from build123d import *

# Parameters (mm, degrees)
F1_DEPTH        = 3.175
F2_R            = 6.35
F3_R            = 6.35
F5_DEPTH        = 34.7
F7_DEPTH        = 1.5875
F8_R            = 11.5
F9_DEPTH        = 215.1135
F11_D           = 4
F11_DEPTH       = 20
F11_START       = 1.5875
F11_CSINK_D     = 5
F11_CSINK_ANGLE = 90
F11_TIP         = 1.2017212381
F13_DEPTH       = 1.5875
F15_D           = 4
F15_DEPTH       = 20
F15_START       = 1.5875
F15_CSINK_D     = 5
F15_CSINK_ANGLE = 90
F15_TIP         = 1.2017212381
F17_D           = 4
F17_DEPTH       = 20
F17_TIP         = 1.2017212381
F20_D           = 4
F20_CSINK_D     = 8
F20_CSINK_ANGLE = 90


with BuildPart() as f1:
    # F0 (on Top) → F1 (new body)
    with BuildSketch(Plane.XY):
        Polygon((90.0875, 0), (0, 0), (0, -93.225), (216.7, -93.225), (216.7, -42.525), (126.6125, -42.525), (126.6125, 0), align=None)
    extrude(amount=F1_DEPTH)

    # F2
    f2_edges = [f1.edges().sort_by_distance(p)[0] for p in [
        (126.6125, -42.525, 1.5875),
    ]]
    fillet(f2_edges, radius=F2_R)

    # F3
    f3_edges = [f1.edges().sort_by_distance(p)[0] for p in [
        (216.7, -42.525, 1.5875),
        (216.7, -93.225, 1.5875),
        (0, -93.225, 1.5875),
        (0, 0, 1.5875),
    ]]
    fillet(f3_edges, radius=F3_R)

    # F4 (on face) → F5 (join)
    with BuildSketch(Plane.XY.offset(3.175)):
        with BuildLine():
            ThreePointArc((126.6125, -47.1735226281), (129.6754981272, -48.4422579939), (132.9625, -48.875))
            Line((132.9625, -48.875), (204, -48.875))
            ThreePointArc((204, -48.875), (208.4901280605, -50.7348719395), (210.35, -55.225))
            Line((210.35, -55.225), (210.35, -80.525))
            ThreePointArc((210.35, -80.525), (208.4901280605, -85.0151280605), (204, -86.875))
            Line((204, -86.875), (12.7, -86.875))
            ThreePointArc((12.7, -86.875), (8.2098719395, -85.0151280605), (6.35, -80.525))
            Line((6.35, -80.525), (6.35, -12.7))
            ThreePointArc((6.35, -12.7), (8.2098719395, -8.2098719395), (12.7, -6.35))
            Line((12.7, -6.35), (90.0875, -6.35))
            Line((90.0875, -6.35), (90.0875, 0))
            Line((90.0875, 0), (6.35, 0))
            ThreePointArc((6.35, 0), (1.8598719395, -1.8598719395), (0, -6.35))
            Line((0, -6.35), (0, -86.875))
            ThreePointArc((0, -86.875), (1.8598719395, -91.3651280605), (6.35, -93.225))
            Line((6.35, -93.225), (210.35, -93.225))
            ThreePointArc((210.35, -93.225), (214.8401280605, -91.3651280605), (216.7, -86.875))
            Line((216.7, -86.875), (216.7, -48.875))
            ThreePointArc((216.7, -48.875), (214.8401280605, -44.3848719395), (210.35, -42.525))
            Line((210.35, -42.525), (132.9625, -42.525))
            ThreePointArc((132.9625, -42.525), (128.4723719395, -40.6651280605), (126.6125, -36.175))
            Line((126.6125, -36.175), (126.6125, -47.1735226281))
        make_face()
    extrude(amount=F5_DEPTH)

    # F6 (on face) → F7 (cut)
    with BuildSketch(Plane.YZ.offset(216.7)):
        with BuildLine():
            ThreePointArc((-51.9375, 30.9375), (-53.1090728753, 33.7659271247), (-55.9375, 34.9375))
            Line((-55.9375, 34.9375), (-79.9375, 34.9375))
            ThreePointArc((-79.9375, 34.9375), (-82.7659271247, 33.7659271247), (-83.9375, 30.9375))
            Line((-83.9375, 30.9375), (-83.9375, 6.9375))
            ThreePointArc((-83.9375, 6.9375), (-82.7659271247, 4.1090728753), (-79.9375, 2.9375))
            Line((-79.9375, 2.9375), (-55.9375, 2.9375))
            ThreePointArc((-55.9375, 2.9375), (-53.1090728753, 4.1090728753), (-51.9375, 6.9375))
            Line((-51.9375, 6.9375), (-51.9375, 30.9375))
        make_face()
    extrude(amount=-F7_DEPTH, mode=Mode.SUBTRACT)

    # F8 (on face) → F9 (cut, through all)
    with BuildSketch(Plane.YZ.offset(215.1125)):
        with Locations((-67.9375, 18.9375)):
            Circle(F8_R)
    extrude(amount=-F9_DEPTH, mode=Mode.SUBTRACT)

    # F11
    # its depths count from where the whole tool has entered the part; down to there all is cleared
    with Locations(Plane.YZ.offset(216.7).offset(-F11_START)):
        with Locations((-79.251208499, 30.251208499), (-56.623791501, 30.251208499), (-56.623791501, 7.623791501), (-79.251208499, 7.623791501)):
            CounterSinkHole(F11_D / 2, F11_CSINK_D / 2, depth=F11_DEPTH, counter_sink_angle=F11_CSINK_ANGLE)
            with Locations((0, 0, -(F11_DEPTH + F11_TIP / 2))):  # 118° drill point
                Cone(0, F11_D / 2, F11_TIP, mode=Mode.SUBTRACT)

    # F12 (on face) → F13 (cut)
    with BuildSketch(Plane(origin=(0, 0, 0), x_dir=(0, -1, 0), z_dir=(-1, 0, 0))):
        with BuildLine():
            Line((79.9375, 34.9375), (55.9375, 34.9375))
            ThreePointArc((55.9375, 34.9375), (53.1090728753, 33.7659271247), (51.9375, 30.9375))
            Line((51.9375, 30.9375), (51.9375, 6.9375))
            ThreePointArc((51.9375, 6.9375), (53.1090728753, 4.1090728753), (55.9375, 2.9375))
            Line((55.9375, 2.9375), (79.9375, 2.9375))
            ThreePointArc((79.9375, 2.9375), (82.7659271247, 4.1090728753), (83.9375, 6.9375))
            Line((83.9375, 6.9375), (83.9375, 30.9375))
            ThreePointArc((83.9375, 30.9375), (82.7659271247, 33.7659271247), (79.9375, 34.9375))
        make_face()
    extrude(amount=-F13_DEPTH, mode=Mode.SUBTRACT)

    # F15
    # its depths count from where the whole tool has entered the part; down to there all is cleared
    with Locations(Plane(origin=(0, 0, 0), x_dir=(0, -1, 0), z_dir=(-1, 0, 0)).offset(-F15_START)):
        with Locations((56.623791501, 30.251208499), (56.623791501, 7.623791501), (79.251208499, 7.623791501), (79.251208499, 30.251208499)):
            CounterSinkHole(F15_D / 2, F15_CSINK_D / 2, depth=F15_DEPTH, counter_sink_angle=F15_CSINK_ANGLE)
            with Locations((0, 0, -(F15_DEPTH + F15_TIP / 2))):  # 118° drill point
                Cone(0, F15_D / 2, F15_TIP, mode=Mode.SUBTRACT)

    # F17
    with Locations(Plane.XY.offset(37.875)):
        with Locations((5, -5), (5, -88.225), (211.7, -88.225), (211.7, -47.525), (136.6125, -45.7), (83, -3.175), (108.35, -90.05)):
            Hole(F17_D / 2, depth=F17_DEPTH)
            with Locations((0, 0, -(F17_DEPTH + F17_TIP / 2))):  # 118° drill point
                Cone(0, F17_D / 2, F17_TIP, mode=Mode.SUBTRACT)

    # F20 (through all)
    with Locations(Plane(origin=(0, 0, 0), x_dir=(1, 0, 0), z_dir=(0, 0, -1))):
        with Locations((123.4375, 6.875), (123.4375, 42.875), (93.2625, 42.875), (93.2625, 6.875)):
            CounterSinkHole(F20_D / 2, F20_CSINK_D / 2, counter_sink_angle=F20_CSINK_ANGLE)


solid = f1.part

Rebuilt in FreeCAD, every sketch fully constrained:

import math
import FreeCAD as App
import Part
import Sketcher


def edges_at(feature, points):
    """Names of the edges that pass closest to the given points."""
    edges = feature.Shape.Edges
    near = lambda p: min(range(len(edges)), key=lambda i: edges[i].distToShape(Part.Vertex(*p))[0])
    return sorted({f"Edge{near(p) + 1}" for p in points})

doc = App.newDocument("Part")
body = doc.addObject("PartDesign::Body", "Body")

# Sketch on XY plane
sketch1 = body.newObject("Sketcher::SketchObject", "Sketch")
sketch1.AttachmentSupport = (doc.getObject("XY_Plane"), [""])
sketch1.MapMode = "FlatFace"
sketch1.addGeometry(Part.LineSegment(App.Vector(0, 0, 0), App.Vector(0, -93, 0)), False)
sketch1.addGeometry(Part.LineSegment(App.Vector(0, -93, 0), App.Vector(217, -93, 0)), False)
sketch1.addGeometry(Part.LineSegment(App.Vector(217, -93, 0), App.Vector(217, -43, 0)), False)
sketch1.addGeometry(Part.LineSegment(App.Vector(217, -43, 0), App.Vector(127, -43, 0)), False)
sketch1.addGeometry(Part.LineSegment(App.Vector(127, -43, 0), App.Vector(127, 0, 0)), False)
sketch1.addGeometry(Part.LineSegment(App.Vector(127, 0, 0), App.Vector(0, 0, 0)), False)
sketch1.addConstraint(Sketcher.Constraint("Coincident", 0, 2, 1, 1))
sketch1.addConstraint(Sketcher.Constraint("Coincident", 1, 2, 2, 1))
sketch1.addConstraint(Sketcher.Constraint("Coincident", 2, 2, 3, 1))
sketch1.addConstraint(Sketcher.Constraint("Coincident", 3, 2, 4, 1))
sketch1.addConstraint(Sketcher.Constraint("Coincident", 4, 2, 5, 1))
sketch1.addConstraint(Sketcher.Constraint("Coincident", 5, 2, 0, 1))
sketch1.addConstraint(Sketcher.Constraint("Vertical", 0))
sketch1.addConstraint(Sketcher.Constraint("Horizontal", 1))
sketch1.addConstraint(Sketcher.Constraint("Vertical", 2))
sketch1.addConstraint(Sketcher.Constraint("Horizontal", 3))
sketch1.addConstraint(Sketcher.Constraint("Vertical", 4))
sketch1.addConstraint(Sketcher.Constraint("Horizontal", 5))
sketch1.addConstraint(Sketcher.Constraint("Coincident", 5, 2, -1, 1))
sketch1.addConstraint(Sketcher.Constraint("DistanceX", 1, 1, 1, 2, 216.7))
sketch1.addConstraint(Sketcher.Constraint("DistanceY", 2, 1, 2, 2, 50.7))
sketch1.addConstraint(Sketcher.Constraint("DistanceY", 0, 2, 0, 1, 93.225))
sketch1.addConstraint(Sketcher.Constraint("DistanceX", 3, 2, 3, 1, 90.0875))
pad1 = body.newObject("PartDesign::Pad", "Pad")
pad1.Profile = sketch1
pad1.Length = 3.175
doc.recompute()

fillet = body.newObject("PartDesign::Fillet", "Fillet")
fillet.Base = (pad1, edges_at(pad1, [(126.612, -42.525, 1.587)]))
fillet.Radius = 6.35
doc.recompute()

fillet2 = body.newObject("PartDesign::Fillet", "Fillet001")
fillet2.Base = (fillet, edges_at(fillet, [
    (216.7, -42.525, 1.587),
    (216.7, -93.225, 1.587),
    (0, -93.225, 1.587),
    (0, 0, 1.587),
]))
fillet2.Radius = 6.35

# Sketch on XY plane
sketch2 = body.newObject("Sketcher::SketchObject", "Sketch001")
sketch2.AttachmentSupport = (doc.getObject("XY_Plane"), [""])
sketch2.MapMode = "FlatFace"
sketch2.AttachmentOffset = App.Placement(App.Vector(0, 0, 3.175), App.Rotation())
sketch2.addGeometry(Part.ArcOfCircle(Part.Circle(App.Vector(133, -36, 0), App.Vector(0, 0, 1), 13), math.radians(-120), math.radians(-90)), False)
sketch2.addGeometry(Part.LineSegment(App.Vector(133, -49, 0), App.Vector(204, -49, 0)), False)
sketch2.addGeometry(Part.ArcOfCircle(Part.Circle(App.Vector(204, -55, 0), App.Vector(0, 0, 1), 6), math.radians(0), math.radians(90)), False)
sketch2.addGeometry(Part.LineSegment(App.Vector(210, -55, 0), App.Vector(210, -81, 0)), False)
sketch2.addGeometry(Part.ArcOfCircle(Part.Circle(App.Vector(204, -81, 0), App.Vector(0, 0, 1), 6), math.radians(-90), math.radians(0)), False)
sketch2.addGeometry(Part.LineSegment(App.Vector(204, -87, 0), App.Vector(13, -87, 0)), False)
sketch2.addGeometry(Part.ArcOfCircle(Part.Circle(App.Vector(13, -81, 0), App.Vector(0, 0, 1), 6), math.radians(180), math.radians(270)), False)
sketch2.addGeometry(Part.LineSegment(App.Vector(6, -81, 0), App.Vector(6, -13, 0)), False)
sketch2.addGeometry(Part.ArcOfCircle(Part.Circle(App.Vector(13, -13, 0), App.Vector(0, 0, 1), 6), math.radians(90), math.radians(180)), False)
sketch2.addGeometry(Part.LineSegment(App.Vector(13, -6, 0), App.Vector(90, -6, 0)), False)
sketch2.addGeometry(Part.LineSegment(App.Vector(90, -6, 0), App.Vector(90, 0, 0)), False)
sketch2.addGeometry(Part.LineSegment(App.Vector(90, 0, 0), App.Vector(6, 0, 0)), False)
sketch2.addGeometry(Part.ArcOfCircle(Part.Circle(App.Vector(6, -6, 0), App.Vector(0, 0, 1), 6), math.radians(90), math.radians(180)), False)
sketch2.addGeometry(Part.LineSegment(App.Vector(0, -6, 0), App.Vector(0, -87, 0)), False)
sketch2.addGeometry(Part.ArcOfCircle(Part.Circle(App.Vector(6, -87, 0), App.Vector(0, 0, 1), 6), math.radians(180), math.radians(270)), False)
sketch2.addGeometry(Part.LineSegment(App.Vector(6, -93, 0), App.Vector(210, -93, 0)), False)
sketch2.addGeometry(Part.ArcOfCircle(Part.Circle(App.Vector(210, -87, 0), App.Vector(0, 0, 1), 6), math.radians(-90), math.radians(0)), False)
sketch2.addGeometry(Part.LineSegment(App.Vector(217, -87, 0), App.Vector(217, -49, 0)), False)
sketch2.addGeometry(Part.ArcOfCircle(Part.Circle(App.Vector(210, -49, 0), App.Vector(0, 0, 1), 6), math.radians(0), math.radians(90)), False)
sketch2.addGeometry(Part.LineSegment(App.Vector(210, -43, 0), App.Vector(133, -43, 0)), False)
sketch2.addGeometry(Part.ArcOfCircle(Part.Circle(App.Vector(133, -36, 0), App.Vector(0, 0, 1), 6), math.radians(180), math.radians(270)), False)
sketch2.addGeometry(Part.LineSegment(App.Vector(127, -36, 0), App.Vector(127, -47, 0)), False)
sketch2.addConstraint(Sketcher.Constraint("Tangent", 0, 2, 1, 1))
sketch2.addConstraint(Sketcher.Constraint("Tangent", 1, 2, 2, 2))
sketch2.addConstraint(Sketcher.Constraint("Tangent", 2, 1, 3, 1))
sketch2.addConstraint(Sketcher.Constraint("Tangent", 3, 2, 4, 2))
sketch2.addConstraint(Sketcher.Constraint("Tangent", 4, 1, 5, 1))
sketch2.addConstraint(Sketcher.Constraint("Tangent", 5, 2, 6, 2))
sketch2.addConstraint(Sketcher.Constraint("Tangent", 6, 1, 7, 1))
sketch2.addConstraint(Sketcher.Constraint("Tangent", 7, 2, 8, 2))
sketch2.addConstraint(Sketcher.Constraint("Tangent", 8, 1, 9, 1))
sketch2.addConstraint(Sketcher.Constraint("Coincident", 9, 2, 10, 1))
sketch2.addConstraint(Sketcher.Constraint("Coincident", 10, 2, 11, 1))
sketch2.addConstraint(Sketcher.Constraint("Tangent", 11, 2, 12, 1))
sketch2.addConstraint(Sketcher.Constraint("Tangent", 12, 2, 13, 1))
sketch2.addConstraint(Sketcher.Constraint("Tangent", 13, 2, 14, 1))
sketch2.addConstraint(Sketcher.Constraint("Tangent", 14, 2, 15, 1))
sketch2.addConstraint(Sketcher.Constraint("Tangent", 15, 2, 16, 1))
sketch2.addConstraint(Sketcher.Constraint("Tangent", 16, 2, 17, 1))
sketch2.addConstraint(Sketcher.Constraint("Tangent", 17, 2, 18, 1))
sketch2.addConstraint(Sketcher.Constraint("Tangent", 18, 2, 19, 1))
sketch2.addConstraint(Sketcher.Constraint("Tangent", 19, 2, 20, 2))
sketch2.addConstraint(Sketcher.Constraint("Tangent", 20, 1, 21, 1))
sketch2.addConstraint(Sketcher.Constraint("Coincident", 21, 2, 0, 1))
sketch2.addConstraint(Sketcher.Constraint("Horizontal", 1))
sketch2.addConstraint(Sketcher.Constraint("Vertical", 3))
sketch2.addConstraint(Sketcher.Constraint("Horizontal", 5))
sketch2.addConstraint(Sketcher.Constraint("Vertical", 7))
sketch2.addConstraint(Sketcher.Constraint("Horizontal", 9))
sketch2.addConstraint(Sketcher.Constraint("Vertical", 10))
sketch2.addConstraint(Sketcher.Constraint("Horizontal", 11))
sketch2.addConstraint(Sketcher.Constraint("Vertical", 13))
sketch2.addConstraint(Sketcher.Constraint("Horizontal", 15))
sketch2.addConstraint(Sketcher.Constraint("Vertical", 17))
sketch2.addConstraint(Sketcher.Constraint("Horizontal", 19))
sketch2.addConstraint(Sketcher.Constraint("Vertical", 21))
sketch2.addConstraint(Sketcher.Constraint("Coincident", 20, 3, 0, 3))
sketch2.addConstraint(Sketcher.Constraint("Equal", 2, 4))
sketch2.addConstraint(Sketcher.Constraint("Equal", 4, 6))
sketch2.addConstraint(Sketcher.Constraint("Equal", 6, 8))
sketch2.addConstraint(Sketcher.Constraint("Equal", 8, 12))
sketch2.addConstraint(Sketcher.Constraint("Equal", 12, 14))
sketch2.addConstraint(Sketcher.Constraint("Equal", 14, 16))
sketch2.addConstraint(Sketcher.Constraint("Equal", 16, 18))
sketch2.addConstraint(Sketcher.Constraint("Equal", 18, 20))
sketch2.addConstraint(Sketcher.Constraint("PointOnObject", 10, 2, -1))
sketch2.addConstraint(Sketcher.Constraint("PointOnObject", 12, 2, -2))
sketch2.addConstraint(Sketcher.Constraint("Horizontal", 18, 3, 0, 2))
sketch2.addConstraint(Sketcher.Constraint("Horizontal", 16, 3, 4, 1))
sketch2.addConstraint(Sketcher.Constraint("Horizontal", 12, 3, 8, 1))
sketch2.addConstraint(Sketcher.Constraint("Vertical", 18, 3, 2, 1))
sketch2.addConstraint(Sketcher.Constraint("Vertical", 14, 3, 6, 1))
sketch2.addConstraint(Sketcher.Constraint("Equal", 9, 19))
sketch2.addConstraint(Sketcher.Constraint("Radius", 0, 12.7))
sketch2.addConstraint(Sketcher.Constraint("DistanceX", 15, 1, 15, 2, 204.0))
sketch2.addConstraint(Sketcher.Constraint("DistanceY", 17, 1, 17, 2, 38.0))
sketch2.addConstraint(Sketcher.Constraint("DistanceY", 7, 1, 7, 2, 67.825))
sketch2.addConstraint(Sketcher.Constraint("DistanceX", 1, 1, 1, 2, 71.0375))
pad2 = body.newObject("PartDesign::Pad", "Pad001")
pad2.Profile = sketch2
pad2.Length = 34.7

# Sketch on YZ plane
sketch3 = body.newObject("Sketcher::SketchObject", "Sketch002")
sketch3.AttachmentSupport = (doc.getObject("YZ_Plane"), [""])
sketch3.MapMode = "FlatFace"
sketch3.AttachmentOffset = App.Placement(App.Vector(0, 0, 216.7), App.Rotation())
sketch3.addGeometry(Part.ArcOfCircle(Part.Circle(App.Vector(-55.9, 30.9, 0), App.Vector(0, 0, 1), 4), math.radians(0), math.radians(90)), False)
sketch3.addGeometry(Part.LineSegment(App.Vector(-55.9, 34.9, 0), App.Vector(-79.9, 34.9, 0)), False)
sketch3.addGeometry(Part.ArcOfCircle(Part.Circle(App.Vector(-79.9, 30.9, 0), App.Vector(0, 0, 1), 4), math.radians(90), math.radians(180)), False)
sketch3.addGeometry(Part.LineSegment(App.Vector(-83.9, 30.9, 0), App.Vector(-83.9, 6.9, 0)), False)
sketch3.addGeometry(Part.ArcOfCircle(Part.Circle(App.Vector(-79.9, 6.9, 0), App.Vector(0, 0, 1), 4), math.radians(180), math.radians(270)), False)
sketch3.addGeometry(Part.LineSegment(App.Vector(-79.9, 2.9, 0), App.Vector(-55.9, 2.9, 0)), False)
sketch3.addGeometry(Part.ArcOfCircle(Part.Circle(App.Vector(-55.9, 6.9, 0), App.Vector(0, 0, 1), 4), math.radians(-90), math.radians(0)), False)
sketch3.addGeometry(Part.LineSegment(App.Vector(-51.9, 6.9, 0), App.Vector(-51.9, 30.9, 0)), False)
sketch3.addConstraint(Sketcher.Constraint("Tangent", 0, 2, 1, 1))
sketch3.addConstraint(Sketcher.Constraint("Tangent", 1, 2, 2, 1))
sketch3.addConstraint(Sketcher.Constraint("Tangent", 2, 2, 3, 1))
sketch3.addConstraint(Sketcher.Constraint("Tangent", 3, 2, 4, 1))
sketch3.addConstraint(Sketcher.Constraint("Tangent", 4, 2, 5, 1))
sketch3.addConstraint(Sketcher.Constraint("Tangent", 5, 2, 6, 1))
sketch3.addConstraint(Sketcher.Constraint("Tangent", 6, 2, 7, 1))
sketch3.addConstraint(Sketcher.Constraint("Tangent", 7, 2, 0, 1))
sketch3.addConstraint(Sketcher.Constraint("Horizontal", 1))
sketch3.addConstraint(Sketcher.Constraint("Vertical", 3))
sketch3.addConstraint(Sketcher.Constraint("Horizontal", 5))
sketch3.addConstraint(Sketcher.Constraint("Vertical", 7))
sketch3.addConstraint(Sketcher.Constraint("Equal", 0, 2))
sketch3.addConstraint(Sketcher.Constraint("Equal", 2, 4))
sketch3.addConstraint(Sketcher.Constraint("Equal", 4, 6))
sketch3.addConstraint(Sketcher.Constraint("Equal", 5, 3))
sketch3.addConstraint(Sketcher.Constraint("Radius", 0, 4.0))
sketch3.addConstraint(Sketcher.Constraint("DistanceX", 1, 2, 1, 1, 24.0))
sketch3.addConstraint(Sketcher.Constraint("DistanceX", 0, 3, -1, 1, 55.9375))
sketch3.addConstraint(Sketcher.Constraint("DistanceY", -1, 1, 0, 3, 30.9375))
pocket1 = body.newObject("PartDesign::Pocket", "Pocket")
pocket1.Profile = sketch3
pocket1.Length = 1.5875

# Sketch on YZ plane
sketch4 = body.newObject("Sketcher::SketchObject", "Sketch003")
sketch4.AttachmentSupport = (doc.getObject("YZ_Plane"), [""])
sketch4.MapMode = "FlatFace"
sketch4.AttachmentOffset = App.Placement(App.Vector(0, 0, 215.1125), App.Rotation())
sketch4.addGeometry(Part.Circle(App.Vector(-68, 19, 0), App.Vector(0, 0, 1), 12), False)
sketch4.addConstraint(Sketcher.Constraint("Diameter", 0, 23.0))
sketch4.addConstraint(Sketcher.Constraint("DistanceX", 0, 3, -1, 1, 67.9375))
sketch4.addConstraint(Sketcher.Constraint("DistanceY", -1, 1, 0, 3, 18.9375))
pocket2 = body.newObject("PartDesign::Pocket", "Pocket001")
pocket2.Profile = sketch4
pocket2.Type = "ThroughAll"

# Sketch on YZ plane
sketch5 = body.newObject("Sketcher::SketchObject", "Sketch004")
sketch5.AttachmentSupport = (doc.getObject("YZ_Plane"), [""])
sketch5.MapMode = "FlatFace"
sketch5.AttachmentOffset = App.Placement(App.Vector(0, 0, 215.1125), App.Rotation())
sketch5.addGeometry(Part.Circle(App.Vector(-79.3, 30.3, 0), App.Vector(0, 0, 1), 2), False)
sketch5.addGeometry(Part.Circle(App.Vector(-56.6, 30.3, 0), App.Vector(0, 0, 1), 2), False)
sketch5.addGeometry(Part.Circle(App.Vector(-56.6, 7.6, 0), App.Vector(0, 0, 1), 2), False)
sketch5.addGeometry(Part.Circle(App.Vector(-79.3, 7.6, 0), App.Vector(0, 0, 1), 2), False)
sketch5.addConstraint(Sketcher.Constraint("Equal", 0, 1))
sketch5.addConstraint(Sketcher.Constraint("Equal", 1, 2))
sketch5.addConstraint(Sketcher.Constraint("Equal", 2, 3))
sketch5.addConstraint(Sketcher.Constraint("Horizontal", 0, 3, 1, 3))
sketch5.addConstraint(Sketcher.Constraint("Horizontal", 2, 3, 3, 3))
sketch5.addConstraint(Sketcher.Constraint("Vertical", 1, 3, 2, 3))
sketch5.addConstraint(Sketcher.Constraint("Vertical", 0, 3, 3, 3))
sketch5.addConstraint(Sketcher.Constraint("Diameter", 0, 4.0))
sketch5.addConstraint(Sketcher.Constraint("DistanceX", 0, 3, -1, 1, 79.251208))
sketch5.addConstraint(Sketcher.Constraint("DistanceY", -1, 1, 0, 3, 30.251208))
sketch5.addConstraint(Sketcher.Constraint("DistanceX", 1, 3, -1, 1, 56.623792))
sketch5.addConstraint(Sketcher.Constraint("DistanceY", -1, 1, 2, 3, 7.623792))
doc.recompute()
hole = body.newObject("PartDesign::Hole", "Hole")
hole.Profile = sketch5
hole.ThreadType = "None"
hole.Diameter = 4
hole.DepthType = "Dimension"
hole.Depth = 20
hole.DrillPoint = "Angled"
hole.DrillPointAngle = 118
hole.HoleCutType = "Countersink"
hole.HoleCutDiameter = 5
hole.HoleCutCountersinkAngle = 90

# Sketch on YZ plane
sketch6 = body.newObject("Sketcher::SketchObject", "Sketch005")
sketch6.AttachmentSupport = (doc.getObject("YZ_Plane"), [""])
sketch6.MapMode = "FlatFace"
sketch6.addGeometry(Part.LineSegment(App.Vector(-79.9, 34.9, 0), App.Vector(-55.9, 34.9, 0)), False)
sketch6.addGeometry(Part.ArcOfCircle(Part.Circle(App.Vector(-55.9, 30.9, 0), App.Vector(0, 0, 1), 4), math.radians(0), math.radians(90)), False)
sketch6.addGeometry(Part.LineSegment(App.Vector(-51.9, 30.9, 0), App.Vector(-51.9, 6.9, 0)), False)
sketch6.addGeometry(Part.ArcOfCircle(Part.Circle(App.Vector(-55.9, 6.9, 0), App.Vector(0, 0, 1), 4), math.radians(-90), math.radians(0)), False)
sketch6.addGeometry(Part.LineSegment(App.Vector(-55.9, 2.9, 0), App.Vector(-79.9, 2.9, 0)), False)
sketch6.addGeometry(Part.ArcOfCircle(Part.Circle(App.Vector(-79.9, 6.9, 0), App.Vector(0, 0, 1), 4), math.radians(180), math.radians(270)), False)
sketch6.addGeometry(Part.LineSegment(App.Vector(-83.9, 6.9, 0), App.Vector(-83.9, 30.9, 0)), False)
sketch6.addGeometry(Part.ArcOfCircle(Part.Circle(App.Vector(-79.9, 30.9, 0), App.Vector(0, 0, 1), 4), math.radians(90), math.radians(180)), False)
sketch6.addConstraint(Sketcher.Constraint("Tangent", 0, 2, 1, 2))
sketch6.addConstraint(Sketcher.Constraint("Tangent", 1, 1, 2, 1))
sketch6.addConstraint(Sketcher.Constraint("Tangent", 2, 2, 3, 2))
sketch6.addConstraint(Sketcher.Constraint("Tangent", 3, 1, 4, 1))
sketch6.addConstraint(Sketcher.Constraint("Tangent", 4, 2, 5, 2))
sketch6.addConstraint(Sketcher.Constraint("Tangent", 5, 1, 6, 1))
sketch6.addConstraint(Sketcher.Constraint("Tangent", 6, 2, 7, 2))
sketch6.addConstraint(Sketcher.Constraint("Tangent", 7, 1, 0, 1))
sketch6.addConstraint(Sketcher.Constraint("Horizontal", 0))
sketch6.addConstraint(Sketcher.Constraint("Vertical", 2))
sketch6.addConstraint(Sketcher.Constraint("Horizontal", 4))
sketch6.addConstraint(Sketcher.Constraint("Vertical", 6))
sketch6.addConstraint(Sketcher.Constraint("Equal", 1, 3))
sketch6.addConstraint(Sketcher.Constraint("Equal", 3, 5))
sketch6.addConstraint(Sketcher.Constraint("Equal", 5, 7))
sketch6.addConstraint(Sketcher.Constraint("Equal", 4, 2))
sketch6.addConstraint(Sketcher.Constraint("Radius", 1, 4.0))
sketch6.addConstraint(Sketcher.Constraint("DistanceX", 0, 1, 0, 2, 24.0))
sketch6.addConstraint(Sketcher.Constraint("DistanceX", 1, 3, -1, 1, 55.9375))
sketch6.addConstraint(Sketcher.Constraint("DistanceY", -1, 1, 1, 3, 30.9375))
pocket3 = body.newObject("PartDesign::Pocket", "Pocket002")
pocket3.Profile = sketch6
pocket3.Length = 1.5875
pocket3.Reversed = True

# Sketch on YZ plane
sketch7 = body.newObject("Sketcher::SketchObject", "Sketch006")
sketch7.AttachmentSupport = (doc.getObject("YZ_Plane"), [""])
sketch7.MapMode = "FlatFace"
sketch7.AttachmentOffset = App.Placement(App.Vector(0, 0, 1.5875), App.Rotation())
sketch7.addGeometry(Part.Circle(App.Vector(-56.6, 30.3, 0), App.Vector(0, 0, 1), 2), False)
sketch7.addGeometry(Part.Circle(App.Vector(-56.6, 7.6, 0), App.Vector(0, 0, 1), 2), False)
sketch7.addGeometry(Part.Circle(App.Vector(-79.3, 7.6, 0), App.Vector(0, 0, 1), 2), False)
sketch7.addGeometry(Part.Circle(App.Vector(-79.3, 30.3, 0), App.Vector(0, 0, 1), 2), False)
sketch7.addConstraint(Sketcher.Constraint("Equal", 0, 1))
sketch7.addConstraint(Sketcher.Constraint("Equal", 1, 2))
sketch7.addConstraint(Sketcher.Constraint("Equal", 2, 3))
sketch7.addConstraint(Sketcher.Constraint("Horizontal", 1, 3, 2, 3))
sketch7.addConstraint(Sketcher.Constraint("Horizontal", 0, 3, 3, 3))
sketch7.addConstraint(Sketcher.Constraint("Vertical", 0, 3, 1, 3))
sketch7.addConstraint(Sketcher.Constraint("Vertical", 2, 3, 3, 3))
sketch7.addConstraint(Sketcher.Constraint("Diameter", 0, 4.0))
sketch7.addConstraint(Sketcher.Constraint("DistanceX", 0, 3, -1, 1, 56.623792))
sketch7.addConstraint(Sketcher.Constraint("DistanceY", -1, 1, 0, 3, 30.251208))
sketch7.addConstraint(Sketcher.Constraint("DistanceY", -1, 1, 1, 3, 7.623792))
sketch7.addConstraint(Sketcher.Constraint("DistanceX", 2, 3, -1, 1, 79.251208))
doc.recompute()
hole2 = body.newObject("PartDesign::Hole", "Hole001")
hole2.Profile = sketch7
hole2.ThreadType = "None"
hole2.Diameter = 4
hole2.DepthType = "Dimension"
hole2.Depth = 20
hole2.DrillPoint = "Angled"
hole2.DrillPointAngle = 118
hole2.HoleCutType = "Countersink"
hole2.HoleCutDiameter = 5
hole2.HoleCutCountersinkAngle = 90
hole2.Reversed = True

# Sketch on XY plane
sketch8 = body.newObject("Sketcher::SketchObject", "Sketch007")
sketch8.AttachmentSupport = (doc.getObject("XY_Plane"), [""])
sketch8.MapMode = "FlatFace"
sketch8.AttachmentOffset = App.Placement(App.Vector(0, 0, 37.875), App.Rotation())
sketch8.addGeometry(Part.Circle(App.Vector(5, -5, 0), App.Vector(0, 0, 1), 2), False)
sketch8.addGeometry(Part.Circle(App.Vector(5, -88.2, 0), App.Vector(0, 0, 1), 2), False)
sketch8.addGeometry(Part.Circle(App.Vector(211.7, -88.2, 0), App.Vector(0, 0, 1), 2), False)
sketch8.addGeometry(Part.Circle(App.Vector(211.7, -47.5, 0), App.Vector(0, 0, 1), 2), False)
sketch8.addGeometry(Part.Circle(App.Vector(136.6, -45.7, 0), App.Vector(0, 0, 1), 2), False)
sketch8.addGeometry(Part.Circle(App.Vector(83, -3.2, 0), App.Vector(0, 0, 1), 2), False)
sketch8.addGeometry(Part.Circle(App.Vector(108.3, -90, 0), App.Vector(0, 0, 1), 2), False)
sketch8.addConstraint(Sketcher.Constraint("Equal", 0, 1))
sketch8.addConstraint(Sketcher.Constraint("Equal", 1, 2))
sketch8.addConstraint(Sketcher.Constraint("Equal", 2, 3))
sketch8.addConstraint(Sketcher.Constraint("Equal", 3, 4))
sketch8.addConstraint(Sketcher.Constraint("Equal", 4, 5))
sketch8.addConstraint(Sketcher.Constraint("Equal", 5, 6))
sketch8.addConstraint(Sketcher.Constraint("Horizontal", 1, 3, 2, 3))
sketch8.addConstraint(Sketcher.Constraint("Vertical", 0, 3, 1, 3))
sketch8.addConstraint(Sketcher.Constraint("Vertical", 2, 3, 3, 3))
sketch8.addConstraint(Sketcher.Constraint("Diameter", 0, 4.0))
sketch8.addConstraint(Sketcher.Constraint("DistanceX", -1, 1, 0, 3, 5.0))
sketch8.addConstraint(Sketcher.Constraint("DistanceY", 0, 3, -1, 1, 5.0))
sketch8.addConstraint(Sketcher.Constraint("DistanceX", -1, 1, 5, 3, 83.0))
sketch8.addConstraint(Sketcher.Constraint("DistanceX", -1, 1, 2, 3, 211.7))
sketch8.addConstraint(Sketcher.Constraint("DistanceY", 4, 3, -1, 1, 45.7))
sketch8.addConstraint(Sketcher.Constraint("DistanceY", 2, 3, 3, 3, 40.7))
sketch8.addConstraint(Sketcher.Constraint("DistanceX", -1, 1, 6, 3, 108.35))
sketch8.addConstraint(Sketcher.Constraint("DistanceY", 6, 3, -1, 1, 90.05))
sketch8.addConstraint(Sketcher.Constraint("DistanceY", 1, 3, 5, 3, 85.05))
sketch8.addConstraint(Sketcher.Constraint("DistanceY", 1, 3, -1, 1, 88.225))
sketch8.addConstraint(Sketcher.Constraint("DistanceX", -1, 1, 4, 3, 136.6125))
doc.recompute()
hole3 = body.newObject("PartDesign::Hole", "Hole002")
hole3.Profile = sketch8
hole3.ThreadType = "None"
hole3.Diameter = 4
hole3.DepthType = "Dimension"
hole3.Depth = 20
hole3.DrillPoint = "Angled"
hole3.DrillPointAngle = 118

# Sketch on XY plane
sketch9 = body.newObject("Sketcher::SketchObject", "Sketch008")
sketch9.AttachmentSupport = (doc.getObject("XY_Plane"), [""])
sketch9.MapMode = "FlatFace"
sketch9.addGeometry(Part.Circle(App.Vector(123.4, -6.9, 0), App.Vector(0, 0, 1), 2), False)
sketch9.addGeometry(Part.Circle(App.Vector(123.4, -42.9, 0), App.Vector(0, 0, 1), 2), False)
sketch9.addGeometry(Part.Circle(App.Vector(93.3, -42.9, 0), App.Vector(0, 0, 1), 2), False)
sketch9.addGeometry(Part.Circle(App.Vector(93.3, -6.9, 0), App.Vector(0, 0, 1), 2), False)
sketch9.addConstraint(Sketcher.Constraint("Equal", 0, 1))
sketch9.addConstraint(Sketcher.Constraint("Equal", 1, 2))
sketch9.addConstraint(Sketcher.Constraint("Equal", 2, 3))
sketch9.addConstraint(Sketcher.Constraint("Horizontal", 1, 3, 2, 3))
sketch9.addConstraint(Sketcher.Constraint("Horizontal", 0, 3, 3, 3))
sketch9.addConstraint(Sketcher.Constraint("Vertical", 0, 3, 1, 3))
sketch9.addConstraint(Sketcher.Constraint("Vertical", 2, 3, 3, 3))
sketch9.addConstraint(Sketcher.Constraint("Diameter", 0, 4.0))
sketch9.addConstraint(Sketcher.Constraint("DistanceY", 1, 3, 0, 3, 36.0))
sketch9.addConstraint(Sketcher.Constraint("DistanceY", 0, 3, -1, 1, 6.875))
sketch9.addConstraint(Sketcher.Constraint("DistanceX", 2, 3, 1, 3, 30.175))
sketch9.addConstraint(Sketcher.Constraint("DistanceX", -1, 1, 0, 3, 123.4375))
doc.recompute()
hole4 = body.newObject("PartDesign::Hole", "Hole003")
hole4.Profile = sketch9
hole4.ThreadType = "None"
hole4.Diameter = 4
hole4.DepthType = "ThroughAll"
hole4.HoleCutType = "Countersink"
hole4.HoleCutDiameter = 8
hole4.HoleCutCountersinkAngle = 90
hole4.Reversed = True

doc.recompute()
